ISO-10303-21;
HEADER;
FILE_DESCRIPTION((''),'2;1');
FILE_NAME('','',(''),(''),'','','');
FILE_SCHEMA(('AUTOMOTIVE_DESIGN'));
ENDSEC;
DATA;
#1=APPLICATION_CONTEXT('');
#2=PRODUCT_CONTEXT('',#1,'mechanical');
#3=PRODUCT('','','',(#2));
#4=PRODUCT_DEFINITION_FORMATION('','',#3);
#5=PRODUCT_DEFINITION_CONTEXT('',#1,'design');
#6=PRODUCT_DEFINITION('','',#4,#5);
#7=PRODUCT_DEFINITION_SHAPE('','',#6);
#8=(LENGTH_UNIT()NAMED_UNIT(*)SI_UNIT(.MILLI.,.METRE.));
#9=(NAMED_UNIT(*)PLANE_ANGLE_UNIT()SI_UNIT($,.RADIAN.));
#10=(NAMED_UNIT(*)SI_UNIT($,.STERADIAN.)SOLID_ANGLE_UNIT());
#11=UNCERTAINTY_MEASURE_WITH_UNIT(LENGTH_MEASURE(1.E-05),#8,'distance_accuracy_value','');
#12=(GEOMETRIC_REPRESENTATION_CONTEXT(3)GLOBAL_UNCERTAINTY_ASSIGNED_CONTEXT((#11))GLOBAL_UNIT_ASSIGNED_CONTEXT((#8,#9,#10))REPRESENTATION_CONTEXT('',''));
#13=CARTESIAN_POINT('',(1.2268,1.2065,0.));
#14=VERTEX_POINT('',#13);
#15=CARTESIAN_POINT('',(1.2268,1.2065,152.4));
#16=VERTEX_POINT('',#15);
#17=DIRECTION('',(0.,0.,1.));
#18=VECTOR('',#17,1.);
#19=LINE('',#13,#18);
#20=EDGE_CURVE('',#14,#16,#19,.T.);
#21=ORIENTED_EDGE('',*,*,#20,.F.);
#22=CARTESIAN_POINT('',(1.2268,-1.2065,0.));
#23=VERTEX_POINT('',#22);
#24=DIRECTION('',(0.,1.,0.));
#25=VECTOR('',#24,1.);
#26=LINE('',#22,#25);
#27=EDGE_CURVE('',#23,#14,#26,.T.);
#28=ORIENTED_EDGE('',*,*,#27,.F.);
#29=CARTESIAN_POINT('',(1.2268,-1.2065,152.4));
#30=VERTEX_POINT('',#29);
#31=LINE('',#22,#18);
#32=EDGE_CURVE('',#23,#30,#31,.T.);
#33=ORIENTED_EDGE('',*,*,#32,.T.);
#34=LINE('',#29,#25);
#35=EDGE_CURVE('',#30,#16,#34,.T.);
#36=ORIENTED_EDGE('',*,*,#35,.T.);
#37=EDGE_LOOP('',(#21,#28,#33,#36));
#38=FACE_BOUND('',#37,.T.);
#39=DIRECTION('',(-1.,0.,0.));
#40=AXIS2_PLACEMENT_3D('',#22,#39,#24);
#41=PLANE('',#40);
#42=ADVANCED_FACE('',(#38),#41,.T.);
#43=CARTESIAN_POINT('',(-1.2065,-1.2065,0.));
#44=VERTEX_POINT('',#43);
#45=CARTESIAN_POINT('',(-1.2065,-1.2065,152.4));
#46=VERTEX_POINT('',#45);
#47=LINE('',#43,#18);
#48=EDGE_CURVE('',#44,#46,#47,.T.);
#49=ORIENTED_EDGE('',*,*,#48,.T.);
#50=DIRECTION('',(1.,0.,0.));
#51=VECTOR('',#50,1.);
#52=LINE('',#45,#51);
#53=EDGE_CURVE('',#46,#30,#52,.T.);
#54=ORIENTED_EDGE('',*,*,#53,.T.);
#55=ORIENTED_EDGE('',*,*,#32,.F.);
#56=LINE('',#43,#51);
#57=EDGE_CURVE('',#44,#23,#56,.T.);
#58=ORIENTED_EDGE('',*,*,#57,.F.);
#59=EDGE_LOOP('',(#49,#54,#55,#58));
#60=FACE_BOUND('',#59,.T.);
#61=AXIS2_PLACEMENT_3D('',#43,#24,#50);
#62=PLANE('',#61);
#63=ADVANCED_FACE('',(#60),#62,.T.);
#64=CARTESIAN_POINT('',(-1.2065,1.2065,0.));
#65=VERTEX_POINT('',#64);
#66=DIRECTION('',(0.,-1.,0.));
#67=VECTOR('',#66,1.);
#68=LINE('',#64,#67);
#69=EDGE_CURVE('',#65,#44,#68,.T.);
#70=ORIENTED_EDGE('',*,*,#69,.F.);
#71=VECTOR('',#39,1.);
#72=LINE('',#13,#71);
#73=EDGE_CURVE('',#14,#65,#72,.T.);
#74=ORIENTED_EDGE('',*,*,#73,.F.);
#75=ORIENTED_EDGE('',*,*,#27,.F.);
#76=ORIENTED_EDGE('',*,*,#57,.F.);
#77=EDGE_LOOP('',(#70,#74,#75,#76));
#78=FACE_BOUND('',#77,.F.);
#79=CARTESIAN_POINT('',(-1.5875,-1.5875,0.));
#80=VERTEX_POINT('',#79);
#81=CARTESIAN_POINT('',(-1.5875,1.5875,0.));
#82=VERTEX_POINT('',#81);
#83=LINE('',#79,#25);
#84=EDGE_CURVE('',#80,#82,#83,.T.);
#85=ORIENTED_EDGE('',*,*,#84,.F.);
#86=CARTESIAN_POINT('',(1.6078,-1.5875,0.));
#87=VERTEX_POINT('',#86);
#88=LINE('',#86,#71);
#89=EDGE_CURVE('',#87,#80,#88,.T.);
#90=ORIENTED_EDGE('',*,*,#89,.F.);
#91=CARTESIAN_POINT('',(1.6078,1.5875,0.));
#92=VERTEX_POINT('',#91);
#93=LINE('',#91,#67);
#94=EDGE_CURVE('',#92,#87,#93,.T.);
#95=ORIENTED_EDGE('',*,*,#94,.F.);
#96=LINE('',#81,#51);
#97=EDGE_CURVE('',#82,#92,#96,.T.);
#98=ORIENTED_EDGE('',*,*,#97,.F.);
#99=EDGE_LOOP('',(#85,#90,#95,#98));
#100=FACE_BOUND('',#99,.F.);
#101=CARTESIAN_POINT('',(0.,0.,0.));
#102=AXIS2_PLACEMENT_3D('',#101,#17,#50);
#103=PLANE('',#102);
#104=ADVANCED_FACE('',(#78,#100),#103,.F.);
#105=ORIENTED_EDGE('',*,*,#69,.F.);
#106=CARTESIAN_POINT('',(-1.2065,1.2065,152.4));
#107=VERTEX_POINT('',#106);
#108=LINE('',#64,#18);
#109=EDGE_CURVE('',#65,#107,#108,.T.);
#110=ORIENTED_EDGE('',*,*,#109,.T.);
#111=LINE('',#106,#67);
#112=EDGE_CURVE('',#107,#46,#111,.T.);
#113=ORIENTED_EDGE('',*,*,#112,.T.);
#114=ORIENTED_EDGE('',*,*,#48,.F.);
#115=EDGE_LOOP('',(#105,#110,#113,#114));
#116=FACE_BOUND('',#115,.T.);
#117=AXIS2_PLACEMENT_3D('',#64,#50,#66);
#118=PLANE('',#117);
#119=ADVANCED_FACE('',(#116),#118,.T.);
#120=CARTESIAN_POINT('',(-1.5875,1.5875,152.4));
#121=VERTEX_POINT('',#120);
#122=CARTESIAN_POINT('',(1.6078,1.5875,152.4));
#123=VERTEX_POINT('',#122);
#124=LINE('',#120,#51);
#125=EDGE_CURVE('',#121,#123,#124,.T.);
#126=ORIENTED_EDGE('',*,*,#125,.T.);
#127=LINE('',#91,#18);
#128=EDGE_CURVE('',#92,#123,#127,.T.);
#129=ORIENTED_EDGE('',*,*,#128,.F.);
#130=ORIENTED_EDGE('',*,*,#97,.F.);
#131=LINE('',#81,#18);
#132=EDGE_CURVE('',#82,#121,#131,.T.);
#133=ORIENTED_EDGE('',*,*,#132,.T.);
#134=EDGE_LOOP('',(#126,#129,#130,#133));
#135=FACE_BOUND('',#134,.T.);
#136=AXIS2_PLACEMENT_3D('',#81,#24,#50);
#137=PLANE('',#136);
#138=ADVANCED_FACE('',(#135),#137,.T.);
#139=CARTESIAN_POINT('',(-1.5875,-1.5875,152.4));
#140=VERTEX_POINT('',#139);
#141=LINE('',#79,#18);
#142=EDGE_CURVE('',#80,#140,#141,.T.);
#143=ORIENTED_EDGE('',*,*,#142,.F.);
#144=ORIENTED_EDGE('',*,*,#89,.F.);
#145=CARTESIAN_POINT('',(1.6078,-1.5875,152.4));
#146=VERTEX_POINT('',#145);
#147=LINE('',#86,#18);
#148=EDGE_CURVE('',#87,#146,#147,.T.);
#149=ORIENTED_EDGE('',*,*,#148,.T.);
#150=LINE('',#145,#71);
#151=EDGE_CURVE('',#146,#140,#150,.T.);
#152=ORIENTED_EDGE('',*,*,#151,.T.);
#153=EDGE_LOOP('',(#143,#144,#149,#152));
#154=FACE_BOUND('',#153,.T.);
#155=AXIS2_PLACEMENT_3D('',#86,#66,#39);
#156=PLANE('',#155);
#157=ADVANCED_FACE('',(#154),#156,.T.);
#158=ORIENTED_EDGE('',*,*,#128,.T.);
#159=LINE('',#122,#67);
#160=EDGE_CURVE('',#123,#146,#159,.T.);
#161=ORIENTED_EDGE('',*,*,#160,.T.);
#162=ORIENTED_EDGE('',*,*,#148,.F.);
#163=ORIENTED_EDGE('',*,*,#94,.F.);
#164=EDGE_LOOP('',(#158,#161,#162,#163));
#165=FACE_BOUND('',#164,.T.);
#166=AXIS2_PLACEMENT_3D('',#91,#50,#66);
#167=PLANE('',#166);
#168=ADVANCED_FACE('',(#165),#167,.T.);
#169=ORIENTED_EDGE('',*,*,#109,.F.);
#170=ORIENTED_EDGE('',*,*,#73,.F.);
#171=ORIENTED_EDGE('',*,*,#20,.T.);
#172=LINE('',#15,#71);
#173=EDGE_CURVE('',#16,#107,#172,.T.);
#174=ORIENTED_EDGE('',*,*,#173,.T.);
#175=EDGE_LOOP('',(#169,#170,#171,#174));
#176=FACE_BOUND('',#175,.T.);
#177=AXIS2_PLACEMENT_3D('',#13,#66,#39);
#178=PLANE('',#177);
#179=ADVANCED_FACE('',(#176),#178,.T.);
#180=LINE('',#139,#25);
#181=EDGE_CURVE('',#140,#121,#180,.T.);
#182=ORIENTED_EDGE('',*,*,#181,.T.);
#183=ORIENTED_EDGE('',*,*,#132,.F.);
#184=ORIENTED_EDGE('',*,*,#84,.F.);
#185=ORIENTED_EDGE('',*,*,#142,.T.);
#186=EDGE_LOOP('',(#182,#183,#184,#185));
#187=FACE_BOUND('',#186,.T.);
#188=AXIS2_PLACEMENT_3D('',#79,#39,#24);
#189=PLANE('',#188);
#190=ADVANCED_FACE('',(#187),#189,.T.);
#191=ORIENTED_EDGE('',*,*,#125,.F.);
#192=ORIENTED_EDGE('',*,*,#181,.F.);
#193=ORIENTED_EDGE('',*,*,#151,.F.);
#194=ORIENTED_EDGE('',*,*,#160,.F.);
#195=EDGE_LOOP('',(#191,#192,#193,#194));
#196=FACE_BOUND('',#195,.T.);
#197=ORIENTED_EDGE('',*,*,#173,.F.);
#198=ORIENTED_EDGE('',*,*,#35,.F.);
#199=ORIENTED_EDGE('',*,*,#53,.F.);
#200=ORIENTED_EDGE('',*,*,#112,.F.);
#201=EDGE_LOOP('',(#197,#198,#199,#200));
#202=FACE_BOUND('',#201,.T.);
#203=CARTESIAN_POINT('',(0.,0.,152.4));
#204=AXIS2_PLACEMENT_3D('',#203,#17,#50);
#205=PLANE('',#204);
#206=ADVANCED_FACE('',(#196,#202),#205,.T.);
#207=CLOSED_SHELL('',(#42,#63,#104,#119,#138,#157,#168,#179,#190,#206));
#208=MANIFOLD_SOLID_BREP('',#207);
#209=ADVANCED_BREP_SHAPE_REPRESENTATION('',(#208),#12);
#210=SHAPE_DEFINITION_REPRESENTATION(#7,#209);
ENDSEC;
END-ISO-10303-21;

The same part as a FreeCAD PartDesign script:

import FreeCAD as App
import Part
import Sketcher

V = App.Vector
Q = App.Units.Quantity

doc = App.newDocument("Part")
body = doc.addObject("PartDesign::Body", "Body")

# Sketch on XY plane
sketch1 = body.newObject("Sketcher::SketchObject", "Sketch")
sketch1.AttachmentSupport = (doc.getObject("XY_Plane"), [""])
sketch1.MapMode = "FlatFace"
sketch1.addGeometry([
    Part.LineSegment(V(1.6, 1.6, 0), V(-1.6, 1.6, 0)),  # 0
    Part.LineSegment(V(-1.6, 1.6, 0), V(-1.6, -1.6, 0)),  # 1
    Part.LineSegment(V(-1.6, -1.6, 0), V(1.6, -1.6, 0)),  # 2
    Part.LineSegment(V(1.6, -1.6, 0), V(1.6, 1.6, 0)),  # 3
    Part.LineSegment(V(-1.2, 1.2, 0), V(1.2, 1.2, 0)),  # 4
    Part.LineSegment(V(1.2, 1.2, 0), V(1.2, -1.2, 0)),  # 5
    Part.LineSegment(V(1.2, -1.2, 0), V(-1.2, -1.2, 0)),  # 6
    Part.LineSegment(V(-1.2, -1.2, 0), V(-1.2, 1.2, 0)),  # 7
], False)
sketch1.addConstraint([
    Sketcher.Constraint("Coincident", 0, 2, 1, 1),
    Sketcher.Constraint("Coincident", 1, 2, 2, 1),
    Sketcher.Constraint("Coincident", 2, 2, 3, 1),
    Sketcher.Constraint("Coincident", 3, 2, 0, 1),
    Sketcher.Constraint("Coincident", 4, 2, 5, 1),
    Sketcher.Constraint("Coincident", 5, 2, 6, 1),
    Sketcher.Constraint("Coincident", 6, 2, 7, 1),
    Sketcher.Constraint("Coincident", 7, 2, 4, 1),
    Sketcher.Constraint("Horizontal", 0),
    Sketcher.Constraint("Vertical", 1),
    Sketcher.Constraint("Horizontal", 2),
    Sketcher.Constraint("Vertical", 3),
    Sketcher.Constraint("Horizontal", 4),
    Sketcher.Constraint("Vertical", 5),
    Sketcher.Constraint("Horizontal", 6),
    Sketcher.Constraint("Vertical", 7),
    Sketcher.Constraint("DistanceY", 1, 2, 1, 1, Q("0.125 in")),
    Sketcher.Constraint("DistanceX", 0, 2, 0, 1, Q("0.1258 in")),
    Sketcher.Constraint("DistanceX", 0, 2, -1, 1, Q("0.0625 in")),
    Sketcher.Constraint("DistanceY", -1, 1, 0, 2, Q("0.0625 in")),
    Sketcher.Constraint("DistanceX", 4, 2, 3, 2, Q("0.015 in")),
    Sketcher.Constraint("DistanceY", 4, 2, 3, 2, Q("0.015 in")),
    Sketcher.Constraint("DistanceY", 2, 2, 5, 2, Q("0.015 in")),
    Sketcher.Constraint("DistanceX", 1, 2, 6, 2, Q("0.015 in")),
])
pad1 = body.newObject("PartDesign::Pad", "Pad")
pad1.Profile = sketch1
pad1.Length = Q("6 in")

doc.recompute()
